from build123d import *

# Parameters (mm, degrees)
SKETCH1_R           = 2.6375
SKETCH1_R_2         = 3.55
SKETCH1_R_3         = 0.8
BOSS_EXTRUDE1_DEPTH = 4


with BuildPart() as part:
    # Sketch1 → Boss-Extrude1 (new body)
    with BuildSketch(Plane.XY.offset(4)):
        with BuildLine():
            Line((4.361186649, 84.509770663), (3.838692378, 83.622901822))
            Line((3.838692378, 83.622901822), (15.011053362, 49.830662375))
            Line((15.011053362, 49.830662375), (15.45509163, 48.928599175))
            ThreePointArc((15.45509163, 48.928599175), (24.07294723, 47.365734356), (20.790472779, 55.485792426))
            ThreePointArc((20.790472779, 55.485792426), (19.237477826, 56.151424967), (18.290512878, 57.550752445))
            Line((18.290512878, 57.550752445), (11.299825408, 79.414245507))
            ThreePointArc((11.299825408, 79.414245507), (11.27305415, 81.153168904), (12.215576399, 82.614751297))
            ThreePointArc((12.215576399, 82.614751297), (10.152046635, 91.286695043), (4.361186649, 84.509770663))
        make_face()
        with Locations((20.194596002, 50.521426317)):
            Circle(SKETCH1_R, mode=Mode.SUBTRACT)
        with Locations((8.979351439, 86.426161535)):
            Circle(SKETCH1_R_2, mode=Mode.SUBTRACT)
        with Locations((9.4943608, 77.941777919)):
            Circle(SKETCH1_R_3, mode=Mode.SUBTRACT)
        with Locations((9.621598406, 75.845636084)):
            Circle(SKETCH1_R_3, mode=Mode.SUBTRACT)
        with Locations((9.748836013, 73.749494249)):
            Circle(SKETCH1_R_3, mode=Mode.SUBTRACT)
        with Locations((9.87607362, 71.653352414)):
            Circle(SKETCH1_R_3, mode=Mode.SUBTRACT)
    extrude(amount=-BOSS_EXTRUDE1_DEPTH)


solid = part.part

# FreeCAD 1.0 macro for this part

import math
import FreeCAD as App
import Part
import Sketcher

doc = App.newDocument("Part")
params = doc.addObject("Spreadsheet::Sheet", "Params")
for row, (alias, value) in enumerate([
    ("sketch1_radius", "5 mm"),
    ("sketch1_radius2", "3 mm"),
    ("sketch1_diameter", "1.6 mm"),
    ("sketch1_diameter2", "7.1 mm"),
    ("pad1_length", "4 mm"),
], start=1):
    params.set(f"A{row}", alias)
    params.set(f"B{row}", "=" + value)
    params.setAlias(f"B{row}", alias)

body = doc.addObject("PartDesign::Body", "Body")

# Sketch on XY plane
sketch1 = body.newObject("Sketcher::SketchObject", "Sketch")
sketch1.AttachmentSupport = (doc.getObject("XY_Plane"), [""])
sketch1.MapMode = "FlatFace"
sketch1.AttachmentOffset = App.Placement(App.Vector(0, 0, 4), App.Rotation())
sketch1.addGeometry([
    Part.LineSegment(App.Vector(4.361187, 84.509771, 0), App.Vector(3.838692, 83.622902, 0)),  # 0
    Part.LineSegment(App.Vector(3.838692, 83.622902, 0), App.Vector(15.011053, 49.830662, 0)),  # 1
    Part.LineSegment(App.Vector(15.011053, 49.830662, 0), App.Vector(15.455092, 48.928599, 0)),  # 2
    Part.ArcOfCircle(Part.Circle(App.Vector(20.194596, 50.521426, 0), App.Vector(0, 0, 1), 5), math.radians(-161.42381), math.radians(83.155488)),  # 3
    Part.ArcOfCircle(Part.Circle(App.Vector(21.147999, 58.464412, 0), App.Vector(0, 0, 1), 3), math.radians(-162.268714), math.radians(-96.844512)),  # 4
    Part.LineSegment(App.Vector(18.290513, 57.550752, 0), App.Vector(11.299825, 79.414246, 0)),  # 5
    Part.ArcOfCircle(Part.Circle(App.Vector(14.157311, 80.327905, 0), App.Vector(0, 0, 1), 3), math.radians(130.334207), math.radians(197.731286)),  # 6
    Part.ArcOfCircle(Part.Circle(App.Vector(8.979351, 86.426162, 0), App.Vector(0, 0, 1), 5), math.radians(-49.665793), math.radians(202.536889)),  # 7
    Part.Circle(App.Vector(20.194596, 50.521426, 0), App.Vector(0, 0, 1), 2.6375),  # 8
    Part.Circle(App.Vector(9.748836, 73.749494, 0), App.Vector(0, 0, 1), 0.8),  # 9
    Part.Circle(App.Vector(9.621598, 75.845636, 0), App.Vector(0, 0, 1), 0.8),  # 10
    Part.Circle(App.Vector(9.494361, 77.941778, 0), App.Vector(0, 0, 1), 0.8),  # 11
    Part.Circle(App.Vector(9.876074, 71.653352, 0), App.Vector(0, 0, 1), 0.8),  # 12
    Part.Circle(App.Vector(8.979351, 86.426162, 0), App.Vector(0, 0, 1), 3.55),  # 13
], False)
sketch1.addConstraint([
    Sketcher.Constraint("Coincident", 0, 2, 1, 1),
    Sketcher.Constraint("Coincident", 1, 2, 2, 1),
    Sketcher.Constraint("Coincident", 2, 2, 3, 1),
    Sketcher.Constraint("Tangent", 3, 2, 4, 2),
    Sketcher.Constraint("Tangent", 4, 1, 5, 1),
    Sketcher.Constraint("Tangent", 5, 2, 6, 2),
    Sketcher.Constraint("Tangent", 6, 1, 7, 1),
    Sketcher.Constraint("Coincident", 7, 2, 0, 1),
    Sketcher.Constraint("Coincident", 8, 3, 3, 3),
    Sketcher.Constraint("Coincident", 13, 3, 7, 3),
    Sketcher.Constraint("Equal", 4, 6),
    Sketcher.Constraint("Equal", 3, 7),
    Sketcher.Constraint("Equal", 9, 10),
    Sketcher.Constraint("Equal", 10, 11),
    Sketcher.Constraint("Equal", 11, 12),
    Sketcher.Constraint("Radius", 3, 5.0),
    Sketcher.Constraint("Radius", 4, 3.0),
    Sketcher.Constraint("Diameter", 9, 1.6),
    Sketcher.Constraint("Diameter", 13, 7.1),
    Sketcher.Constraint("Diameter", 8, 5.275),
    Sketcher.Constraint("DistanceX", -1, 1, 4, 3, 21.147999),
    Sketcher.Constraint("DistanceX", -1, 1, 10, 3, 9.621598),
    Sketcher.Constraint("DistanceY", -1, 1, 0, 2, 83.622902),
    Sketcher.Constraint("DistanceY", -1, 1, 2, 2, 48.928599),
    Sketcher.Constraint("Distance", 1, 35.59125),
    Sketcher.Constraint("Distance", 2, 1.005429),
    Sketcher.Constraint("Distance", 5, 22.953911),
    Sketcher.Constraint("DistanceX", -1, 1, 6, 3, 14.157311),
    Sketcher.Constraint("DistanceX", -1, 1, 7, 3, 8.979351),
    Sketcher.Constraint("DistanceY", -1, 1, 7, 3, 86.426162),
    Sketcher.Constraint("DistanceX", -1, 1, 11, 3, 9.494361),
    Sketcher.Constraint("DistanceX", -1, 1, 2, 2, 15.455092),
    Sketcher.Constraint("DistanceY", -1, 1, 7, 2, 84.509771),
    Sketcher.Constraint("DistanceY", 9, 3, 6, 3, 6.578411),
    Sketcher.Constraint("DistanceX", 9, 3, 3, 3, 10.44576),
    Sketcher.Constraint("DistanceY", 9, 3, 10, 3, 2.096142),
    Sketcher.Constraint("DistanceY", 10, 3, 11, 3, 2.096142),
    Sketcher.Constraint("DistanceY", 12, 3, 9, 3, 2.096142),
    Sketcher.Constraint("DistanceX", 0, 2, 13, 3, 5.140659),
    Sketcher.Constraint("DistanceX", 12, 3, 1, 2, 5.13498),
])
sketch1.setExpression("Constraints[15]", "Params.sketch1_radius")
sketch1.setExpression("Constraints[16]", "Params.sketch1_radius2")
sketch1.setExpression("Constraints[17]", "Params.sketch1_diameter")
sketch1.setExpression("Constraints[18]", "Params.sketch1_diameter2")
pad1 = body.newObject("PartDesign::Pad", "Pad")
pad1.Profile = sketch1
pad1.setExpression("Length", "Params.pad1_length")
pad1.Reversed = True

doc.recompute()
